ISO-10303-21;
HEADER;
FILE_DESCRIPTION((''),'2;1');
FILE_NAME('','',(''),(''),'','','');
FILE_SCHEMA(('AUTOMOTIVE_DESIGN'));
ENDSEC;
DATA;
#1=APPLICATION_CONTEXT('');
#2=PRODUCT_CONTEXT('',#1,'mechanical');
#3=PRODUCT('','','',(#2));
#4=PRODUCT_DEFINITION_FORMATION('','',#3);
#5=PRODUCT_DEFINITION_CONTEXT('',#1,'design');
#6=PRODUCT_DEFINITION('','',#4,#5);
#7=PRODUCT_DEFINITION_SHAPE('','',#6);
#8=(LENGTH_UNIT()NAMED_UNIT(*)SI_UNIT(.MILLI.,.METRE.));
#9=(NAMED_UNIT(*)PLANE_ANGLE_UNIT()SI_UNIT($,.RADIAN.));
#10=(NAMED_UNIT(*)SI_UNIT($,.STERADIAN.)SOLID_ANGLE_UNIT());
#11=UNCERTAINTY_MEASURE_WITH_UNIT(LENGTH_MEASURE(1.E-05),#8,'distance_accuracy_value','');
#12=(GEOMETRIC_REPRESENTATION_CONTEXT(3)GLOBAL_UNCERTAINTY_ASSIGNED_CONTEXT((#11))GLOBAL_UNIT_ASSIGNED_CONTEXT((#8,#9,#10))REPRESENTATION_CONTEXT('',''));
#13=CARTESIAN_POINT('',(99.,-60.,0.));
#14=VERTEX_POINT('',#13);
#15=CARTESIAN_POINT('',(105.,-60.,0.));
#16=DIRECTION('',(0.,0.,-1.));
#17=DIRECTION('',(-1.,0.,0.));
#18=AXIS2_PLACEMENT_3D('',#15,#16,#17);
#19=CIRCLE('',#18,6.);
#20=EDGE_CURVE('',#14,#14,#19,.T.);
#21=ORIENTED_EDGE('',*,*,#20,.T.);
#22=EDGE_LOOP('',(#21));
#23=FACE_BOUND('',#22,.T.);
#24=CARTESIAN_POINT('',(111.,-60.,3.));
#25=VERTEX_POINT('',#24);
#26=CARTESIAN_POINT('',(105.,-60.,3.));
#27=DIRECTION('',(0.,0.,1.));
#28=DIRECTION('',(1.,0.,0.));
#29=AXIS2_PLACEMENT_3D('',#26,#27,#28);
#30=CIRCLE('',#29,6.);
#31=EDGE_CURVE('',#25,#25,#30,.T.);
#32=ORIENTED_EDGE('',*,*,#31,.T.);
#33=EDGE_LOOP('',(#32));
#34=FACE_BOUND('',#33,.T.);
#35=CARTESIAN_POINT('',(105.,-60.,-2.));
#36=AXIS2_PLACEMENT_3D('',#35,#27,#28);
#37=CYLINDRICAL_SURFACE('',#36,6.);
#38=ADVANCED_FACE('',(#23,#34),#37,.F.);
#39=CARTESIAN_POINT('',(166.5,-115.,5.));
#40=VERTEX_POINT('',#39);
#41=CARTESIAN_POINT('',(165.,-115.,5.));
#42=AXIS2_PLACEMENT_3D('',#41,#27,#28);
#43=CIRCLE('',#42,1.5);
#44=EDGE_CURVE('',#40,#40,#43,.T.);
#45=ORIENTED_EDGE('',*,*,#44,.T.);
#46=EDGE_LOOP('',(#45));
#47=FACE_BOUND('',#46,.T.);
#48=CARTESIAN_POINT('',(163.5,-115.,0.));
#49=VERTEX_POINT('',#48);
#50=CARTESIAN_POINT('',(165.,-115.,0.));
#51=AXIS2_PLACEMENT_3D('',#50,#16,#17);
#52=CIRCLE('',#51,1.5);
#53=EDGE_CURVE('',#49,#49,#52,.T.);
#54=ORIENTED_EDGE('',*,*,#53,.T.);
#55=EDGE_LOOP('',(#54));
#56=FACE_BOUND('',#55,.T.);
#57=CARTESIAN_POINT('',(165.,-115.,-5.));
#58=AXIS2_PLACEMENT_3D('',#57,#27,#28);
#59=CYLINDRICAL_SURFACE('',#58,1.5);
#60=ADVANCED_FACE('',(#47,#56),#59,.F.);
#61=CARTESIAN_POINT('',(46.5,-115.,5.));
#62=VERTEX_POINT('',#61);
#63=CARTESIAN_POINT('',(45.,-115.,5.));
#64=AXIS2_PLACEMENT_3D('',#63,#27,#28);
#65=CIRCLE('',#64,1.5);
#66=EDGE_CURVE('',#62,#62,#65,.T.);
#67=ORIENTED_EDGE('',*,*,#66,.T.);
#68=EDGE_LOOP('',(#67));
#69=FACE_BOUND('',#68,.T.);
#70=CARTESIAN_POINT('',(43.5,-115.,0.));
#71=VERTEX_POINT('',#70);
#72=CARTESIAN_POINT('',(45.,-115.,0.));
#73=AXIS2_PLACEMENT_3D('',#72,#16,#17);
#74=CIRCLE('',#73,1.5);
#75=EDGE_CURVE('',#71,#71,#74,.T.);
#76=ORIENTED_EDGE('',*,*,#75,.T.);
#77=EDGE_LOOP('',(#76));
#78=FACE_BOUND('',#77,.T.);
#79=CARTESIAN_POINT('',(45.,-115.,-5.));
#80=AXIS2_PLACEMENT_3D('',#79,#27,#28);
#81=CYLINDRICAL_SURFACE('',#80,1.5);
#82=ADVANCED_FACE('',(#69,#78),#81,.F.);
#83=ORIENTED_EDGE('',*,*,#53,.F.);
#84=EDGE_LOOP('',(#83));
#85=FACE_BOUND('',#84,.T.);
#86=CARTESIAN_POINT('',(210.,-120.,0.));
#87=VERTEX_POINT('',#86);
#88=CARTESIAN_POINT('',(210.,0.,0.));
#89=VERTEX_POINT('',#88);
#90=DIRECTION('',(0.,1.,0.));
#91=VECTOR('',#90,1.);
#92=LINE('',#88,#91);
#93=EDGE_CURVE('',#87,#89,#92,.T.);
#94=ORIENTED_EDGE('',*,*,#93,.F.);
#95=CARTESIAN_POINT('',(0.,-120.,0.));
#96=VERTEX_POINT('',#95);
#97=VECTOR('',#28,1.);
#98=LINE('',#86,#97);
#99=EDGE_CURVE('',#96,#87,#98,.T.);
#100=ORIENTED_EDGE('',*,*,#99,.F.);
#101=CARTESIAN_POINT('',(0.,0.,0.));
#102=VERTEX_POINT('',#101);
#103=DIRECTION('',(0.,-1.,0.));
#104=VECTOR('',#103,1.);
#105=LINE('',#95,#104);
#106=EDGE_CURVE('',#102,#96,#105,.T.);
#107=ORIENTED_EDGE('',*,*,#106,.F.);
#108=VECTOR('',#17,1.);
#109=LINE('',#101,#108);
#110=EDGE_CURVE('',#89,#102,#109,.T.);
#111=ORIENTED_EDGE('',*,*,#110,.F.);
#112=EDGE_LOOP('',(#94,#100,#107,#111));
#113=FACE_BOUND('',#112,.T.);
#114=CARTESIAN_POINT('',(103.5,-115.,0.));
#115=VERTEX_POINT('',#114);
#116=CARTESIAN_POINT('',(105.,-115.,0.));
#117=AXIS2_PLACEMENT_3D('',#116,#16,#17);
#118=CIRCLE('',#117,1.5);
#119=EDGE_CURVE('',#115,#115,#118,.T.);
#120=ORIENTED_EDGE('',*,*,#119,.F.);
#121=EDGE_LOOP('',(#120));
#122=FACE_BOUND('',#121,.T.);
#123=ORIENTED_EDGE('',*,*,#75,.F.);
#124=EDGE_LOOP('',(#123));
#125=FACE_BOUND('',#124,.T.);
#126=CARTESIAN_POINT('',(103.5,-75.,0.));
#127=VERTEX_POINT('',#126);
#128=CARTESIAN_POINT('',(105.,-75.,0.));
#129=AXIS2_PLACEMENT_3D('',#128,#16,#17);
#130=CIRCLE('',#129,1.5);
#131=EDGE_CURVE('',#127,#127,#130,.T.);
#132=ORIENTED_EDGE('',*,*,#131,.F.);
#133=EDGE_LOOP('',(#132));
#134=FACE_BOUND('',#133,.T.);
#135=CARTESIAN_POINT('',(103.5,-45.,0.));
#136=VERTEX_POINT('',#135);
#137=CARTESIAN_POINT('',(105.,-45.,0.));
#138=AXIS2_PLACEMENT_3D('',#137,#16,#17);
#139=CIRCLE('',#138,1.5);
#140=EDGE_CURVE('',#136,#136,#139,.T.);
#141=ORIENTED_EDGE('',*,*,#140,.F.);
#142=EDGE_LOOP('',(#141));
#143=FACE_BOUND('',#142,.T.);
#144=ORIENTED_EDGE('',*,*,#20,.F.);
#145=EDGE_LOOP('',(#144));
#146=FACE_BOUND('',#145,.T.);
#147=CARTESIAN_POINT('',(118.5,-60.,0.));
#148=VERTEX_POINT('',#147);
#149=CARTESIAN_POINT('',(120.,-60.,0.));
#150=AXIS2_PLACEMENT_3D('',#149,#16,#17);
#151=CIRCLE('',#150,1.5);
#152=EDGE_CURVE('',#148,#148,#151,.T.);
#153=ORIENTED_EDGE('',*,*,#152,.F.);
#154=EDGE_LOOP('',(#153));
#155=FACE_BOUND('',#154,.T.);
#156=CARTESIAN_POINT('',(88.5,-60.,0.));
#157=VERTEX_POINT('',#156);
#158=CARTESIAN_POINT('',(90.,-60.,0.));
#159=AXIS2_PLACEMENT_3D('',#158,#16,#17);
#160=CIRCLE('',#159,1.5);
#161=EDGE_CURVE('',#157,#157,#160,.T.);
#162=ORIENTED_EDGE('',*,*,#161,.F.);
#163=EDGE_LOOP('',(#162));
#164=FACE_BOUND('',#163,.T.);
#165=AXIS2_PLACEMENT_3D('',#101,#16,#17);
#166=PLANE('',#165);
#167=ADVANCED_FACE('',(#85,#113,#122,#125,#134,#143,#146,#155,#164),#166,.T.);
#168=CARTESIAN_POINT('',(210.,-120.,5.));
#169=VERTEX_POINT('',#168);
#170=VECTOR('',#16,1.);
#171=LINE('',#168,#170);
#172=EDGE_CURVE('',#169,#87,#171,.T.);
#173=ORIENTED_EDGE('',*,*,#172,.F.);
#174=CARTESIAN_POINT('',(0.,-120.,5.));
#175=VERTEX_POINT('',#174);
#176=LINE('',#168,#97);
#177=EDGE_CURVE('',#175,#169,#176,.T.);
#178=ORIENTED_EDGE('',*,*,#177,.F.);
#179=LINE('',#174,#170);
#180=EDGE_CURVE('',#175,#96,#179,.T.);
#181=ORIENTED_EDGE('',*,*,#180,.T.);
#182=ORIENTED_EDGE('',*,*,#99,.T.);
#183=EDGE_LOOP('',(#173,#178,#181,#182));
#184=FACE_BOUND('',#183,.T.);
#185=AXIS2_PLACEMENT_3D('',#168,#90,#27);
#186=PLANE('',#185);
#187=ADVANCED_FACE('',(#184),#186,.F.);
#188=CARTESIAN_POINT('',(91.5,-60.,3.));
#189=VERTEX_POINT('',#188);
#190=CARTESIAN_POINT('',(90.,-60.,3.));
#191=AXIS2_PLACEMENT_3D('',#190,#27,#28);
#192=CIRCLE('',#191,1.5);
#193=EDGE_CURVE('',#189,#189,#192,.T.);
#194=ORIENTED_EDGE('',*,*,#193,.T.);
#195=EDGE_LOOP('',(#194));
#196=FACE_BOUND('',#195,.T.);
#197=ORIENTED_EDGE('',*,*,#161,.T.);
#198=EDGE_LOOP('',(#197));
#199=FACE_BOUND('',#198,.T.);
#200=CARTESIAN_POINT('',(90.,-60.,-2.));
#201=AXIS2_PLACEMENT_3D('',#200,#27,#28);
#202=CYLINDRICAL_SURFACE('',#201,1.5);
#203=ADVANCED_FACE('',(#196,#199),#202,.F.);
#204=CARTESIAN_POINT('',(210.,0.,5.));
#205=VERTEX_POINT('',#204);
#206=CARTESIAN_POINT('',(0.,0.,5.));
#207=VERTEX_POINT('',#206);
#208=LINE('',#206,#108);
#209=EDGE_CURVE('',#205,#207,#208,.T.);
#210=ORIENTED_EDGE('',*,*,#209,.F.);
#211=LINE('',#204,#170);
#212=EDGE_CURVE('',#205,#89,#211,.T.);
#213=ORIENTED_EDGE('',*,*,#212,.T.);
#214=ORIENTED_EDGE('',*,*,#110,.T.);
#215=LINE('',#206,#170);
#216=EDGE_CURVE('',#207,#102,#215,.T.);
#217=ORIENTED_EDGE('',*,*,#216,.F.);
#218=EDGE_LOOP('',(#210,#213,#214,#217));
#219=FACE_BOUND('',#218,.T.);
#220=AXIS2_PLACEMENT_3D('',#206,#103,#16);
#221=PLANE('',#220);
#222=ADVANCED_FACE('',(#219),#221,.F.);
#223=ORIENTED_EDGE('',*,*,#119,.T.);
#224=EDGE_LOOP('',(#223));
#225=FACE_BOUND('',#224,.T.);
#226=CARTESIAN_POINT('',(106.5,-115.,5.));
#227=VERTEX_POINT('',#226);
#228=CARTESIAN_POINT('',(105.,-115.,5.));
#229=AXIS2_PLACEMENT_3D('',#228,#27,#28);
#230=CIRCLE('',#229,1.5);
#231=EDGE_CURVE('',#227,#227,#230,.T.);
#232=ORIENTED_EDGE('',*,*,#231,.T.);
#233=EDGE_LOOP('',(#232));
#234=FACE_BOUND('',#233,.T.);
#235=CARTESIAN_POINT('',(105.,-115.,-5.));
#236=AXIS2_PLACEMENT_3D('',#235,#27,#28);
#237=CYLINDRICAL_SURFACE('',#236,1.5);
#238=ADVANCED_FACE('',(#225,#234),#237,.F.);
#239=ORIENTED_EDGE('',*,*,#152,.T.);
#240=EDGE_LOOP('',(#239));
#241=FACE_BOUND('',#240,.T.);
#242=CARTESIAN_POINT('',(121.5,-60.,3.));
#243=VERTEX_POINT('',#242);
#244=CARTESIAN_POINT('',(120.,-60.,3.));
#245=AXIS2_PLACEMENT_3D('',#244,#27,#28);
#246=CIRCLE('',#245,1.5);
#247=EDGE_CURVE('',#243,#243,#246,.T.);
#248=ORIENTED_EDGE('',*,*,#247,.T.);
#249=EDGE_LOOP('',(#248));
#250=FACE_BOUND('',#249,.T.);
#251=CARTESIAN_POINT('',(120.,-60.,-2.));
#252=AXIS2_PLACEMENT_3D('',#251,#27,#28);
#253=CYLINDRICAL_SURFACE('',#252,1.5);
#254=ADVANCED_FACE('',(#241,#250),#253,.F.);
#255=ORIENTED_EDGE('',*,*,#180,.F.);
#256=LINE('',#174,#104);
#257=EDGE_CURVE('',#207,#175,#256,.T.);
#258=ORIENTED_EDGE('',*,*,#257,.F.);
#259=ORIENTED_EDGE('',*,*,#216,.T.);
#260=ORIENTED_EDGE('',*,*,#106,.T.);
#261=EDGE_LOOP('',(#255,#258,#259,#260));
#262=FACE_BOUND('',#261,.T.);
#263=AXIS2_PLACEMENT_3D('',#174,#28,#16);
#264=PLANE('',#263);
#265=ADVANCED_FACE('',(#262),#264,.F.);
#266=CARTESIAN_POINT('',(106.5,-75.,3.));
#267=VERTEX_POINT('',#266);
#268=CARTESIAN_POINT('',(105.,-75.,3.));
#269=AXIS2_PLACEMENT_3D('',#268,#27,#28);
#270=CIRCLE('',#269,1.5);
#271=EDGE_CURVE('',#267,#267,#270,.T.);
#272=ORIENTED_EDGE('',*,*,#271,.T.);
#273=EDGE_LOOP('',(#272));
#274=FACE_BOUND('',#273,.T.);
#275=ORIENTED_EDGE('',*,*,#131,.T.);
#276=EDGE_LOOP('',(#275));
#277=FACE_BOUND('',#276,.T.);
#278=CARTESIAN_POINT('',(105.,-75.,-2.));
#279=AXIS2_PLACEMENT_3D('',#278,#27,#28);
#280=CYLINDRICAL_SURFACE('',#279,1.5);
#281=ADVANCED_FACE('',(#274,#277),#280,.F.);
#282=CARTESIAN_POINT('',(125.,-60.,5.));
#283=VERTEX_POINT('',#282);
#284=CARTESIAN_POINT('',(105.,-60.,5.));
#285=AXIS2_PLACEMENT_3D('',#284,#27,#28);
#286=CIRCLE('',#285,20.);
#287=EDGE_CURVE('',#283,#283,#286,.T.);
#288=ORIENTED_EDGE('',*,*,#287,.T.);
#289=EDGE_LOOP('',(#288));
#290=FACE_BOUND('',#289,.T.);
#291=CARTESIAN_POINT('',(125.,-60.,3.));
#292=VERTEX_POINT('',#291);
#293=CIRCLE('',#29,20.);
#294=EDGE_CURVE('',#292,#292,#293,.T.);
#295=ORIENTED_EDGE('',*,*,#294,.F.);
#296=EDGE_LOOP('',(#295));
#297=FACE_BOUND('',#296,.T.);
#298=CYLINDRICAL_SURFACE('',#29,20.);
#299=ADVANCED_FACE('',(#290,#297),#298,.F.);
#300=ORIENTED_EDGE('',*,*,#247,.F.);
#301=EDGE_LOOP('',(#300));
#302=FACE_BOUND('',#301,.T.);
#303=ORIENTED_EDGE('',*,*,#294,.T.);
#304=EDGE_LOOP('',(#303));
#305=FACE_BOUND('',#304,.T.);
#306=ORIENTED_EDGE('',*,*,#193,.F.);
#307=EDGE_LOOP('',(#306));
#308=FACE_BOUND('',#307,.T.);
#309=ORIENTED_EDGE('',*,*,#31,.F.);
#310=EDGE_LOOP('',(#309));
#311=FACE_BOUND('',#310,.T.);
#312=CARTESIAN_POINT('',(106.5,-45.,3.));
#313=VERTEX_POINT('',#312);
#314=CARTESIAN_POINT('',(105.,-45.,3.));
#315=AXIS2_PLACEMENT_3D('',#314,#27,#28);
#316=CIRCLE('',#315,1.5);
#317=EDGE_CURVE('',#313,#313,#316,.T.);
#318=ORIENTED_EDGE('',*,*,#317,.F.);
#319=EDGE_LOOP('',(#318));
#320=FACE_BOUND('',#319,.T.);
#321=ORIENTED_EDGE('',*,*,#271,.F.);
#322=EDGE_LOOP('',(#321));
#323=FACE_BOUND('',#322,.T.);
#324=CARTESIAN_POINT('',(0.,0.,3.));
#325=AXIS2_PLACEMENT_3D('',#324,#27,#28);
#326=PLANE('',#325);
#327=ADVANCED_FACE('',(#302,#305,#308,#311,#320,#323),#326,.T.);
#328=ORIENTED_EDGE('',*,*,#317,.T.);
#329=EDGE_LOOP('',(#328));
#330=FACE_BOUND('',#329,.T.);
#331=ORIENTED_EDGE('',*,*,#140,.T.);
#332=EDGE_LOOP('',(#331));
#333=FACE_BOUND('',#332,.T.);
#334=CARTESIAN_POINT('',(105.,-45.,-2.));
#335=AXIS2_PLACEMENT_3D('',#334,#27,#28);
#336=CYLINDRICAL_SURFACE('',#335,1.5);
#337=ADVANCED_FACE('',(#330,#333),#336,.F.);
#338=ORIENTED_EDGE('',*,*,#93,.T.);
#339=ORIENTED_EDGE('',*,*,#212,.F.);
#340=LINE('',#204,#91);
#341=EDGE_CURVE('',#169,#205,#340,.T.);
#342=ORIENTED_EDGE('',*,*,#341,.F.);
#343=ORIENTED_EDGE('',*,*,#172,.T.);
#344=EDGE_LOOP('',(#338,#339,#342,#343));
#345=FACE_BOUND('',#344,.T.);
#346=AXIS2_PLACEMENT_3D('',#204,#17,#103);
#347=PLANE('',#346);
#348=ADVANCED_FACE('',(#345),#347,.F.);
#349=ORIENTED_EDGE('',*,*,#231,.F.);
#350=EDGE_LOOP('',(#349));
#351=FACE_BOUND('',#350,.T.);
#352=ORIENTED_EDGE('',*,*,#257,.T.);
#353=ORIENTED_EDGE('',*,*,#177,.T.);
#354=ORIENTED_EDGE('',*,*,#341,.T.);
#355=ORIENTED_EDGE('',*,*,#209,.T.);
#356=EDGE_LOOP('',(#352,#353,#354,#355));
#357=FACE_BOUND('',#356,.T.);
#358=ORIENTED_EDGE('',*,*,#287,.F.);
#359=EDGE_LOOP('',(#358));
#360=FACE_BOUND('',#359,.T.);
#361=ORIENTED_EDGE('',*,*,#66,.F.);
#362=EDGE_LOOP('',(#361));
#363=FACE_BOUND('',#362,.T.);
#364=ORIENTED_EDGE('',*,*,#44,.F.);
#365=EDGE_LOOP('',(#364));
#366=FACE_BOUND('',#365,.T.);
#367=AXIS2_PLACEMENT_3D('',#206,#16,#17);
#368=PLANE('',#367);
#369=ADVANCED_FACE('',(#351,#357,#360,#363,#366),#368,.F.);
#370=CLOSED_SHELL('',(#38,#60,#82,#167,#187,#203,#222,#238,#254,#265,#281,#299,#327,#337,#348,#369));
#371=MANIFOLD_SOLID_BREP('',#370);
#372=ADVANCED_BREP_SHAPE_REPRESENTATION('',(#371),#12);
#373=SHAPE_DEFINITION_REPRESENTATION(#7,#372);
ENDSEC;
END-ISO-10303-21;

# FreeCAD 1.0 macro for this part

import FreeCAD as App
import Part
import Sketcher

V = App.Vector


def add_polygon(sketch, points):
    """Adds a closed chain of lines whose ends are joined by coincident constraints."""
    first, n = sketch.GeometryCount, len(points)
    for a, b in zip(points, points[1:] + points[:1]):
        sketch.addGeometry(Part.LineSegment(App.Vector(*a, 0), App.Vector(*b, 0)), False)
    for i in range(n):
        sketch.addConstraint(Sketcher.Constraint("Coincident", first + i, 2, first + (i + 1) % n, 1))

doc = App.newDocument("Part")
body = doc.addObject("PartDesign::Body", "Body")

# Sketch on XY plane
sketch1 = doc.addObject("Sketcher::SketchObject", "Sketch")
body.addObject(sketch1)
sketch1.AttachmentSupport = (doc.XY_Plane, [""])
sketch1.MapMode = "FlatFace"
add_polygon(sketch1, [(0, 0), (0, -120), (210, -120), (210, 0)])  # lines 0-3
sketch1.addConstraint(Sketcher.Constraint("Vertical", 0))
sketch1.addConstraint(Sketcher.Constraint("Horizontal", 1))
sketch1.addConstraint(Sketcher.Constraint("Vertical", 2))
sketch1.addConstraint(Sketcher.Constraint("Horizontal", 3))
sketch1.addConstraint(Sketcher.Constraint("Coincident", 3, 2, -1, 1))
sketch1.addConstraint(Sketcher.Constraint("DistanceX", 1, 1, 1, 2, 210.0))
sketch1.addConstraint(Sketcher.Constraint("DistanceY", 0, 2, 0, 1, 120.0))
pad1 = doc.addObject("PartDesign::Pad", "Pad")
body.addObject(pad1)
pad1.Profile = sketch1
pad1.Length = 5

# Sketch on XY plane
sketch2 = doc.addObject("Sketcher::SketchObject", "Sketch001")
body.addObject(sketch2)
sketch2.AttachmentSupport = (doc.XY_Plane, [""])
sketch2.MapMode = "FlatFace"
sketch2.AttachmentOffset = App.Placement(V(0, 0, 5), App.Rotation())
sketch2.addGeometry(Part.Circle(V(105, -60, 0), V(0, 0, 1), 20), False)
sketch2.addConstraint(Sketcher.Constraint("Diameter", 0, 40.0))
sketch2.addConstraint(Sketcher.Constraint("DistanceX", -1, 1, 0, 3, 105.0))
sketch2.addConstraint(Sketcher.Constraint("DistanceY", 0, 3, -1, 1, 60.0))
pocket1 = doc.addObject("PartDesign::Pocket", "Pocket")
body.addObject(pocket1)
pocket1.Profile = sketch2
pocket1.Length = 2

# Sketch on XY plane
sketch3 = doc.addObject("Sketcher::SketchObject", "Sketch002")
body.addObject(sketch3)
sketch3.AttachmentSupport = (doc.XY_Plane, [""])
sketch3.MapMode = "FlatFace"
sketch3.AttachmentOffset = App.Placement(V(0, 0, 3), App.Rotation())
sketch3.addGeometry(Part.Circle(V(105, -45, 0), V(0, 0, 1), 1.5), False)
sketch3.addGeometry(Part.Circle(V(120, -60, 0), V(0, 0, 1), 1.5), False)
sketch3.addGeometry(Part.Circle(V(105, -75, 0), V(0, 0, 1), 1.5), False)
sketch3.addGeometry(Part.Circle(V(90, -60, 0), V(0, 0, 1), 1.5), False)
sketch3.addConstraint(Sketcher.Constraint("Equal", 0, 1))
sketch3.addConstraint(Sketcher.Constraint("Equal", 1, 2))
sketch3.addConstraint(Sketcher.Constraint("Equal", 2, 3))
sketch3.addConstraint(Sketcher.Constraint("Horizontal", 1, 3, 3, 3))
sketch3.addConstraint(Sketcher.Constraint("Vertical", 0, 3, 2, 3))
sketch3.addConstraint(Sketcher.Constraint("Diameter", 0, 3.0))
sketch3.addConstraint(Sketcher.Constraint("DistanceX", -1, 1, 0, 3, 105.0))
sketch3.addConstraint(Sketcher.Constraint("DistanceY", 0, 3, -1, 1, 45.0))
sketch3.addConstraint(Sketcher.Constraint("DistanceX", -1, 1, 1, 3, 120.0))
sketch3.addConstraint(Sketcher.Constraint("DistanceY", 1, 3, -1, 1, 60.0))
sketch3.addConstraint(Sketcher.Constraint("DistanceY", 2, 3, -1, 1, 75.0))
sketch3.addConstraint(Sketcher.Constraint("DistanceX", -1, 1, 3, 3, 90.0))
pocket2 = doc.addObject("PartDesign::Pocket", "Pocket001")
body.addObject(pocket2)
pocket2.Profile = sketch3
pocket2.Length = 5

# Sketch on XY plane
sketch4 = doc.addObject("Sketcher::SketchObject", "Sketch003")
body.addObject(sketch4)
sketch4.AttachmentSupport = (doc.XY_Plane, [""])
sketch4.MapMode = "FlatFace"
sketch4.AttachmentOffset = App.Placement(V(0, 0, 3), App.Rotation())
sketch4.addGeometry(Part.Circle(V(105, -60, 0), V(0, 0, 1), 6), False)
sketch4.addConstraint(Sketcher.Constraint("Diameter", 0, 12.0))
sketch4.addConstraint(Sketcher.Constraint("DistanceX", -1, 1, 0, 3, 105.0))
sketch4.addConstraint(Sketcher.Constraint("DistanceY", 0, 3, -1, 1, 60.0))
pocket3 = doc.addObject("PartDesign::Pocket", "Pocket002")
body.addObject(pocket3)
pocket3.Profile = sketch4
pocket3.Length = 5

# Sketch on XY plane
sketch5 = doc.addObject("Sketcher::SketchObject", "Sketch004")
body.addObject(sketch5)
sketch5.AttachmentSupport = (doc.XY_Plane, [""])
sketch5.MapMode = "FlatFace"
sketch5.AttachmentOffset = App.Placement(V(0, 0, 5), App.Rotation())
sketch5.addGeometry(Part.Circle(V(45, -115, 0), V(0, 0, 1), 1.5), False)
sketch5.addGeometry(Part.Circle(V(105, -115, 0), V(0, 0, 1), 1.5), False)
sketch5.addGeometry(Part.Circle(V(165, -115, 0), V(0, 0, 1), 1.5), False)
sketch5.addConstraint(Sketcher.Constraint("Equal", 0, 1))
sketch5.addConstraint(Sketcher.Constraint("Equal", 1, 2))
sketch5.addConstraint(Sketcher.Constraint("Horizontal", 0, 3, 1, 3))
sketch5.addConstraint(Sketcher.Constraint("Horizontal", 1, 3, 2, 3))
sketch5.addConstraint(Sketcher.Constraint("Diameter", 0, 3.0))
sketch5.addConstraint(Sketcher.Constraint("DistanceX", -1, 1, 0, 3, 45.0))
sketch5.addConstraint(Sketcher.Constraint("DistanceY", 0, 3, -1, 1, 115.0))
sketch5.addConstraint(Sketcher.Constraint("DistanceX", -1, 1, 1, 3, 105.0))
sketch5.addConstraint(Sketcher.Constraint("DistanceX", -1, 1, 2, 3, 165.0))
pocket4 = doc.addObject("PartDesign::Pocket", "Pocket003")
body.addObject(pocket4)
pocket4.Profile = sketch5
pocket4.Length = 10

doc.recompute()
